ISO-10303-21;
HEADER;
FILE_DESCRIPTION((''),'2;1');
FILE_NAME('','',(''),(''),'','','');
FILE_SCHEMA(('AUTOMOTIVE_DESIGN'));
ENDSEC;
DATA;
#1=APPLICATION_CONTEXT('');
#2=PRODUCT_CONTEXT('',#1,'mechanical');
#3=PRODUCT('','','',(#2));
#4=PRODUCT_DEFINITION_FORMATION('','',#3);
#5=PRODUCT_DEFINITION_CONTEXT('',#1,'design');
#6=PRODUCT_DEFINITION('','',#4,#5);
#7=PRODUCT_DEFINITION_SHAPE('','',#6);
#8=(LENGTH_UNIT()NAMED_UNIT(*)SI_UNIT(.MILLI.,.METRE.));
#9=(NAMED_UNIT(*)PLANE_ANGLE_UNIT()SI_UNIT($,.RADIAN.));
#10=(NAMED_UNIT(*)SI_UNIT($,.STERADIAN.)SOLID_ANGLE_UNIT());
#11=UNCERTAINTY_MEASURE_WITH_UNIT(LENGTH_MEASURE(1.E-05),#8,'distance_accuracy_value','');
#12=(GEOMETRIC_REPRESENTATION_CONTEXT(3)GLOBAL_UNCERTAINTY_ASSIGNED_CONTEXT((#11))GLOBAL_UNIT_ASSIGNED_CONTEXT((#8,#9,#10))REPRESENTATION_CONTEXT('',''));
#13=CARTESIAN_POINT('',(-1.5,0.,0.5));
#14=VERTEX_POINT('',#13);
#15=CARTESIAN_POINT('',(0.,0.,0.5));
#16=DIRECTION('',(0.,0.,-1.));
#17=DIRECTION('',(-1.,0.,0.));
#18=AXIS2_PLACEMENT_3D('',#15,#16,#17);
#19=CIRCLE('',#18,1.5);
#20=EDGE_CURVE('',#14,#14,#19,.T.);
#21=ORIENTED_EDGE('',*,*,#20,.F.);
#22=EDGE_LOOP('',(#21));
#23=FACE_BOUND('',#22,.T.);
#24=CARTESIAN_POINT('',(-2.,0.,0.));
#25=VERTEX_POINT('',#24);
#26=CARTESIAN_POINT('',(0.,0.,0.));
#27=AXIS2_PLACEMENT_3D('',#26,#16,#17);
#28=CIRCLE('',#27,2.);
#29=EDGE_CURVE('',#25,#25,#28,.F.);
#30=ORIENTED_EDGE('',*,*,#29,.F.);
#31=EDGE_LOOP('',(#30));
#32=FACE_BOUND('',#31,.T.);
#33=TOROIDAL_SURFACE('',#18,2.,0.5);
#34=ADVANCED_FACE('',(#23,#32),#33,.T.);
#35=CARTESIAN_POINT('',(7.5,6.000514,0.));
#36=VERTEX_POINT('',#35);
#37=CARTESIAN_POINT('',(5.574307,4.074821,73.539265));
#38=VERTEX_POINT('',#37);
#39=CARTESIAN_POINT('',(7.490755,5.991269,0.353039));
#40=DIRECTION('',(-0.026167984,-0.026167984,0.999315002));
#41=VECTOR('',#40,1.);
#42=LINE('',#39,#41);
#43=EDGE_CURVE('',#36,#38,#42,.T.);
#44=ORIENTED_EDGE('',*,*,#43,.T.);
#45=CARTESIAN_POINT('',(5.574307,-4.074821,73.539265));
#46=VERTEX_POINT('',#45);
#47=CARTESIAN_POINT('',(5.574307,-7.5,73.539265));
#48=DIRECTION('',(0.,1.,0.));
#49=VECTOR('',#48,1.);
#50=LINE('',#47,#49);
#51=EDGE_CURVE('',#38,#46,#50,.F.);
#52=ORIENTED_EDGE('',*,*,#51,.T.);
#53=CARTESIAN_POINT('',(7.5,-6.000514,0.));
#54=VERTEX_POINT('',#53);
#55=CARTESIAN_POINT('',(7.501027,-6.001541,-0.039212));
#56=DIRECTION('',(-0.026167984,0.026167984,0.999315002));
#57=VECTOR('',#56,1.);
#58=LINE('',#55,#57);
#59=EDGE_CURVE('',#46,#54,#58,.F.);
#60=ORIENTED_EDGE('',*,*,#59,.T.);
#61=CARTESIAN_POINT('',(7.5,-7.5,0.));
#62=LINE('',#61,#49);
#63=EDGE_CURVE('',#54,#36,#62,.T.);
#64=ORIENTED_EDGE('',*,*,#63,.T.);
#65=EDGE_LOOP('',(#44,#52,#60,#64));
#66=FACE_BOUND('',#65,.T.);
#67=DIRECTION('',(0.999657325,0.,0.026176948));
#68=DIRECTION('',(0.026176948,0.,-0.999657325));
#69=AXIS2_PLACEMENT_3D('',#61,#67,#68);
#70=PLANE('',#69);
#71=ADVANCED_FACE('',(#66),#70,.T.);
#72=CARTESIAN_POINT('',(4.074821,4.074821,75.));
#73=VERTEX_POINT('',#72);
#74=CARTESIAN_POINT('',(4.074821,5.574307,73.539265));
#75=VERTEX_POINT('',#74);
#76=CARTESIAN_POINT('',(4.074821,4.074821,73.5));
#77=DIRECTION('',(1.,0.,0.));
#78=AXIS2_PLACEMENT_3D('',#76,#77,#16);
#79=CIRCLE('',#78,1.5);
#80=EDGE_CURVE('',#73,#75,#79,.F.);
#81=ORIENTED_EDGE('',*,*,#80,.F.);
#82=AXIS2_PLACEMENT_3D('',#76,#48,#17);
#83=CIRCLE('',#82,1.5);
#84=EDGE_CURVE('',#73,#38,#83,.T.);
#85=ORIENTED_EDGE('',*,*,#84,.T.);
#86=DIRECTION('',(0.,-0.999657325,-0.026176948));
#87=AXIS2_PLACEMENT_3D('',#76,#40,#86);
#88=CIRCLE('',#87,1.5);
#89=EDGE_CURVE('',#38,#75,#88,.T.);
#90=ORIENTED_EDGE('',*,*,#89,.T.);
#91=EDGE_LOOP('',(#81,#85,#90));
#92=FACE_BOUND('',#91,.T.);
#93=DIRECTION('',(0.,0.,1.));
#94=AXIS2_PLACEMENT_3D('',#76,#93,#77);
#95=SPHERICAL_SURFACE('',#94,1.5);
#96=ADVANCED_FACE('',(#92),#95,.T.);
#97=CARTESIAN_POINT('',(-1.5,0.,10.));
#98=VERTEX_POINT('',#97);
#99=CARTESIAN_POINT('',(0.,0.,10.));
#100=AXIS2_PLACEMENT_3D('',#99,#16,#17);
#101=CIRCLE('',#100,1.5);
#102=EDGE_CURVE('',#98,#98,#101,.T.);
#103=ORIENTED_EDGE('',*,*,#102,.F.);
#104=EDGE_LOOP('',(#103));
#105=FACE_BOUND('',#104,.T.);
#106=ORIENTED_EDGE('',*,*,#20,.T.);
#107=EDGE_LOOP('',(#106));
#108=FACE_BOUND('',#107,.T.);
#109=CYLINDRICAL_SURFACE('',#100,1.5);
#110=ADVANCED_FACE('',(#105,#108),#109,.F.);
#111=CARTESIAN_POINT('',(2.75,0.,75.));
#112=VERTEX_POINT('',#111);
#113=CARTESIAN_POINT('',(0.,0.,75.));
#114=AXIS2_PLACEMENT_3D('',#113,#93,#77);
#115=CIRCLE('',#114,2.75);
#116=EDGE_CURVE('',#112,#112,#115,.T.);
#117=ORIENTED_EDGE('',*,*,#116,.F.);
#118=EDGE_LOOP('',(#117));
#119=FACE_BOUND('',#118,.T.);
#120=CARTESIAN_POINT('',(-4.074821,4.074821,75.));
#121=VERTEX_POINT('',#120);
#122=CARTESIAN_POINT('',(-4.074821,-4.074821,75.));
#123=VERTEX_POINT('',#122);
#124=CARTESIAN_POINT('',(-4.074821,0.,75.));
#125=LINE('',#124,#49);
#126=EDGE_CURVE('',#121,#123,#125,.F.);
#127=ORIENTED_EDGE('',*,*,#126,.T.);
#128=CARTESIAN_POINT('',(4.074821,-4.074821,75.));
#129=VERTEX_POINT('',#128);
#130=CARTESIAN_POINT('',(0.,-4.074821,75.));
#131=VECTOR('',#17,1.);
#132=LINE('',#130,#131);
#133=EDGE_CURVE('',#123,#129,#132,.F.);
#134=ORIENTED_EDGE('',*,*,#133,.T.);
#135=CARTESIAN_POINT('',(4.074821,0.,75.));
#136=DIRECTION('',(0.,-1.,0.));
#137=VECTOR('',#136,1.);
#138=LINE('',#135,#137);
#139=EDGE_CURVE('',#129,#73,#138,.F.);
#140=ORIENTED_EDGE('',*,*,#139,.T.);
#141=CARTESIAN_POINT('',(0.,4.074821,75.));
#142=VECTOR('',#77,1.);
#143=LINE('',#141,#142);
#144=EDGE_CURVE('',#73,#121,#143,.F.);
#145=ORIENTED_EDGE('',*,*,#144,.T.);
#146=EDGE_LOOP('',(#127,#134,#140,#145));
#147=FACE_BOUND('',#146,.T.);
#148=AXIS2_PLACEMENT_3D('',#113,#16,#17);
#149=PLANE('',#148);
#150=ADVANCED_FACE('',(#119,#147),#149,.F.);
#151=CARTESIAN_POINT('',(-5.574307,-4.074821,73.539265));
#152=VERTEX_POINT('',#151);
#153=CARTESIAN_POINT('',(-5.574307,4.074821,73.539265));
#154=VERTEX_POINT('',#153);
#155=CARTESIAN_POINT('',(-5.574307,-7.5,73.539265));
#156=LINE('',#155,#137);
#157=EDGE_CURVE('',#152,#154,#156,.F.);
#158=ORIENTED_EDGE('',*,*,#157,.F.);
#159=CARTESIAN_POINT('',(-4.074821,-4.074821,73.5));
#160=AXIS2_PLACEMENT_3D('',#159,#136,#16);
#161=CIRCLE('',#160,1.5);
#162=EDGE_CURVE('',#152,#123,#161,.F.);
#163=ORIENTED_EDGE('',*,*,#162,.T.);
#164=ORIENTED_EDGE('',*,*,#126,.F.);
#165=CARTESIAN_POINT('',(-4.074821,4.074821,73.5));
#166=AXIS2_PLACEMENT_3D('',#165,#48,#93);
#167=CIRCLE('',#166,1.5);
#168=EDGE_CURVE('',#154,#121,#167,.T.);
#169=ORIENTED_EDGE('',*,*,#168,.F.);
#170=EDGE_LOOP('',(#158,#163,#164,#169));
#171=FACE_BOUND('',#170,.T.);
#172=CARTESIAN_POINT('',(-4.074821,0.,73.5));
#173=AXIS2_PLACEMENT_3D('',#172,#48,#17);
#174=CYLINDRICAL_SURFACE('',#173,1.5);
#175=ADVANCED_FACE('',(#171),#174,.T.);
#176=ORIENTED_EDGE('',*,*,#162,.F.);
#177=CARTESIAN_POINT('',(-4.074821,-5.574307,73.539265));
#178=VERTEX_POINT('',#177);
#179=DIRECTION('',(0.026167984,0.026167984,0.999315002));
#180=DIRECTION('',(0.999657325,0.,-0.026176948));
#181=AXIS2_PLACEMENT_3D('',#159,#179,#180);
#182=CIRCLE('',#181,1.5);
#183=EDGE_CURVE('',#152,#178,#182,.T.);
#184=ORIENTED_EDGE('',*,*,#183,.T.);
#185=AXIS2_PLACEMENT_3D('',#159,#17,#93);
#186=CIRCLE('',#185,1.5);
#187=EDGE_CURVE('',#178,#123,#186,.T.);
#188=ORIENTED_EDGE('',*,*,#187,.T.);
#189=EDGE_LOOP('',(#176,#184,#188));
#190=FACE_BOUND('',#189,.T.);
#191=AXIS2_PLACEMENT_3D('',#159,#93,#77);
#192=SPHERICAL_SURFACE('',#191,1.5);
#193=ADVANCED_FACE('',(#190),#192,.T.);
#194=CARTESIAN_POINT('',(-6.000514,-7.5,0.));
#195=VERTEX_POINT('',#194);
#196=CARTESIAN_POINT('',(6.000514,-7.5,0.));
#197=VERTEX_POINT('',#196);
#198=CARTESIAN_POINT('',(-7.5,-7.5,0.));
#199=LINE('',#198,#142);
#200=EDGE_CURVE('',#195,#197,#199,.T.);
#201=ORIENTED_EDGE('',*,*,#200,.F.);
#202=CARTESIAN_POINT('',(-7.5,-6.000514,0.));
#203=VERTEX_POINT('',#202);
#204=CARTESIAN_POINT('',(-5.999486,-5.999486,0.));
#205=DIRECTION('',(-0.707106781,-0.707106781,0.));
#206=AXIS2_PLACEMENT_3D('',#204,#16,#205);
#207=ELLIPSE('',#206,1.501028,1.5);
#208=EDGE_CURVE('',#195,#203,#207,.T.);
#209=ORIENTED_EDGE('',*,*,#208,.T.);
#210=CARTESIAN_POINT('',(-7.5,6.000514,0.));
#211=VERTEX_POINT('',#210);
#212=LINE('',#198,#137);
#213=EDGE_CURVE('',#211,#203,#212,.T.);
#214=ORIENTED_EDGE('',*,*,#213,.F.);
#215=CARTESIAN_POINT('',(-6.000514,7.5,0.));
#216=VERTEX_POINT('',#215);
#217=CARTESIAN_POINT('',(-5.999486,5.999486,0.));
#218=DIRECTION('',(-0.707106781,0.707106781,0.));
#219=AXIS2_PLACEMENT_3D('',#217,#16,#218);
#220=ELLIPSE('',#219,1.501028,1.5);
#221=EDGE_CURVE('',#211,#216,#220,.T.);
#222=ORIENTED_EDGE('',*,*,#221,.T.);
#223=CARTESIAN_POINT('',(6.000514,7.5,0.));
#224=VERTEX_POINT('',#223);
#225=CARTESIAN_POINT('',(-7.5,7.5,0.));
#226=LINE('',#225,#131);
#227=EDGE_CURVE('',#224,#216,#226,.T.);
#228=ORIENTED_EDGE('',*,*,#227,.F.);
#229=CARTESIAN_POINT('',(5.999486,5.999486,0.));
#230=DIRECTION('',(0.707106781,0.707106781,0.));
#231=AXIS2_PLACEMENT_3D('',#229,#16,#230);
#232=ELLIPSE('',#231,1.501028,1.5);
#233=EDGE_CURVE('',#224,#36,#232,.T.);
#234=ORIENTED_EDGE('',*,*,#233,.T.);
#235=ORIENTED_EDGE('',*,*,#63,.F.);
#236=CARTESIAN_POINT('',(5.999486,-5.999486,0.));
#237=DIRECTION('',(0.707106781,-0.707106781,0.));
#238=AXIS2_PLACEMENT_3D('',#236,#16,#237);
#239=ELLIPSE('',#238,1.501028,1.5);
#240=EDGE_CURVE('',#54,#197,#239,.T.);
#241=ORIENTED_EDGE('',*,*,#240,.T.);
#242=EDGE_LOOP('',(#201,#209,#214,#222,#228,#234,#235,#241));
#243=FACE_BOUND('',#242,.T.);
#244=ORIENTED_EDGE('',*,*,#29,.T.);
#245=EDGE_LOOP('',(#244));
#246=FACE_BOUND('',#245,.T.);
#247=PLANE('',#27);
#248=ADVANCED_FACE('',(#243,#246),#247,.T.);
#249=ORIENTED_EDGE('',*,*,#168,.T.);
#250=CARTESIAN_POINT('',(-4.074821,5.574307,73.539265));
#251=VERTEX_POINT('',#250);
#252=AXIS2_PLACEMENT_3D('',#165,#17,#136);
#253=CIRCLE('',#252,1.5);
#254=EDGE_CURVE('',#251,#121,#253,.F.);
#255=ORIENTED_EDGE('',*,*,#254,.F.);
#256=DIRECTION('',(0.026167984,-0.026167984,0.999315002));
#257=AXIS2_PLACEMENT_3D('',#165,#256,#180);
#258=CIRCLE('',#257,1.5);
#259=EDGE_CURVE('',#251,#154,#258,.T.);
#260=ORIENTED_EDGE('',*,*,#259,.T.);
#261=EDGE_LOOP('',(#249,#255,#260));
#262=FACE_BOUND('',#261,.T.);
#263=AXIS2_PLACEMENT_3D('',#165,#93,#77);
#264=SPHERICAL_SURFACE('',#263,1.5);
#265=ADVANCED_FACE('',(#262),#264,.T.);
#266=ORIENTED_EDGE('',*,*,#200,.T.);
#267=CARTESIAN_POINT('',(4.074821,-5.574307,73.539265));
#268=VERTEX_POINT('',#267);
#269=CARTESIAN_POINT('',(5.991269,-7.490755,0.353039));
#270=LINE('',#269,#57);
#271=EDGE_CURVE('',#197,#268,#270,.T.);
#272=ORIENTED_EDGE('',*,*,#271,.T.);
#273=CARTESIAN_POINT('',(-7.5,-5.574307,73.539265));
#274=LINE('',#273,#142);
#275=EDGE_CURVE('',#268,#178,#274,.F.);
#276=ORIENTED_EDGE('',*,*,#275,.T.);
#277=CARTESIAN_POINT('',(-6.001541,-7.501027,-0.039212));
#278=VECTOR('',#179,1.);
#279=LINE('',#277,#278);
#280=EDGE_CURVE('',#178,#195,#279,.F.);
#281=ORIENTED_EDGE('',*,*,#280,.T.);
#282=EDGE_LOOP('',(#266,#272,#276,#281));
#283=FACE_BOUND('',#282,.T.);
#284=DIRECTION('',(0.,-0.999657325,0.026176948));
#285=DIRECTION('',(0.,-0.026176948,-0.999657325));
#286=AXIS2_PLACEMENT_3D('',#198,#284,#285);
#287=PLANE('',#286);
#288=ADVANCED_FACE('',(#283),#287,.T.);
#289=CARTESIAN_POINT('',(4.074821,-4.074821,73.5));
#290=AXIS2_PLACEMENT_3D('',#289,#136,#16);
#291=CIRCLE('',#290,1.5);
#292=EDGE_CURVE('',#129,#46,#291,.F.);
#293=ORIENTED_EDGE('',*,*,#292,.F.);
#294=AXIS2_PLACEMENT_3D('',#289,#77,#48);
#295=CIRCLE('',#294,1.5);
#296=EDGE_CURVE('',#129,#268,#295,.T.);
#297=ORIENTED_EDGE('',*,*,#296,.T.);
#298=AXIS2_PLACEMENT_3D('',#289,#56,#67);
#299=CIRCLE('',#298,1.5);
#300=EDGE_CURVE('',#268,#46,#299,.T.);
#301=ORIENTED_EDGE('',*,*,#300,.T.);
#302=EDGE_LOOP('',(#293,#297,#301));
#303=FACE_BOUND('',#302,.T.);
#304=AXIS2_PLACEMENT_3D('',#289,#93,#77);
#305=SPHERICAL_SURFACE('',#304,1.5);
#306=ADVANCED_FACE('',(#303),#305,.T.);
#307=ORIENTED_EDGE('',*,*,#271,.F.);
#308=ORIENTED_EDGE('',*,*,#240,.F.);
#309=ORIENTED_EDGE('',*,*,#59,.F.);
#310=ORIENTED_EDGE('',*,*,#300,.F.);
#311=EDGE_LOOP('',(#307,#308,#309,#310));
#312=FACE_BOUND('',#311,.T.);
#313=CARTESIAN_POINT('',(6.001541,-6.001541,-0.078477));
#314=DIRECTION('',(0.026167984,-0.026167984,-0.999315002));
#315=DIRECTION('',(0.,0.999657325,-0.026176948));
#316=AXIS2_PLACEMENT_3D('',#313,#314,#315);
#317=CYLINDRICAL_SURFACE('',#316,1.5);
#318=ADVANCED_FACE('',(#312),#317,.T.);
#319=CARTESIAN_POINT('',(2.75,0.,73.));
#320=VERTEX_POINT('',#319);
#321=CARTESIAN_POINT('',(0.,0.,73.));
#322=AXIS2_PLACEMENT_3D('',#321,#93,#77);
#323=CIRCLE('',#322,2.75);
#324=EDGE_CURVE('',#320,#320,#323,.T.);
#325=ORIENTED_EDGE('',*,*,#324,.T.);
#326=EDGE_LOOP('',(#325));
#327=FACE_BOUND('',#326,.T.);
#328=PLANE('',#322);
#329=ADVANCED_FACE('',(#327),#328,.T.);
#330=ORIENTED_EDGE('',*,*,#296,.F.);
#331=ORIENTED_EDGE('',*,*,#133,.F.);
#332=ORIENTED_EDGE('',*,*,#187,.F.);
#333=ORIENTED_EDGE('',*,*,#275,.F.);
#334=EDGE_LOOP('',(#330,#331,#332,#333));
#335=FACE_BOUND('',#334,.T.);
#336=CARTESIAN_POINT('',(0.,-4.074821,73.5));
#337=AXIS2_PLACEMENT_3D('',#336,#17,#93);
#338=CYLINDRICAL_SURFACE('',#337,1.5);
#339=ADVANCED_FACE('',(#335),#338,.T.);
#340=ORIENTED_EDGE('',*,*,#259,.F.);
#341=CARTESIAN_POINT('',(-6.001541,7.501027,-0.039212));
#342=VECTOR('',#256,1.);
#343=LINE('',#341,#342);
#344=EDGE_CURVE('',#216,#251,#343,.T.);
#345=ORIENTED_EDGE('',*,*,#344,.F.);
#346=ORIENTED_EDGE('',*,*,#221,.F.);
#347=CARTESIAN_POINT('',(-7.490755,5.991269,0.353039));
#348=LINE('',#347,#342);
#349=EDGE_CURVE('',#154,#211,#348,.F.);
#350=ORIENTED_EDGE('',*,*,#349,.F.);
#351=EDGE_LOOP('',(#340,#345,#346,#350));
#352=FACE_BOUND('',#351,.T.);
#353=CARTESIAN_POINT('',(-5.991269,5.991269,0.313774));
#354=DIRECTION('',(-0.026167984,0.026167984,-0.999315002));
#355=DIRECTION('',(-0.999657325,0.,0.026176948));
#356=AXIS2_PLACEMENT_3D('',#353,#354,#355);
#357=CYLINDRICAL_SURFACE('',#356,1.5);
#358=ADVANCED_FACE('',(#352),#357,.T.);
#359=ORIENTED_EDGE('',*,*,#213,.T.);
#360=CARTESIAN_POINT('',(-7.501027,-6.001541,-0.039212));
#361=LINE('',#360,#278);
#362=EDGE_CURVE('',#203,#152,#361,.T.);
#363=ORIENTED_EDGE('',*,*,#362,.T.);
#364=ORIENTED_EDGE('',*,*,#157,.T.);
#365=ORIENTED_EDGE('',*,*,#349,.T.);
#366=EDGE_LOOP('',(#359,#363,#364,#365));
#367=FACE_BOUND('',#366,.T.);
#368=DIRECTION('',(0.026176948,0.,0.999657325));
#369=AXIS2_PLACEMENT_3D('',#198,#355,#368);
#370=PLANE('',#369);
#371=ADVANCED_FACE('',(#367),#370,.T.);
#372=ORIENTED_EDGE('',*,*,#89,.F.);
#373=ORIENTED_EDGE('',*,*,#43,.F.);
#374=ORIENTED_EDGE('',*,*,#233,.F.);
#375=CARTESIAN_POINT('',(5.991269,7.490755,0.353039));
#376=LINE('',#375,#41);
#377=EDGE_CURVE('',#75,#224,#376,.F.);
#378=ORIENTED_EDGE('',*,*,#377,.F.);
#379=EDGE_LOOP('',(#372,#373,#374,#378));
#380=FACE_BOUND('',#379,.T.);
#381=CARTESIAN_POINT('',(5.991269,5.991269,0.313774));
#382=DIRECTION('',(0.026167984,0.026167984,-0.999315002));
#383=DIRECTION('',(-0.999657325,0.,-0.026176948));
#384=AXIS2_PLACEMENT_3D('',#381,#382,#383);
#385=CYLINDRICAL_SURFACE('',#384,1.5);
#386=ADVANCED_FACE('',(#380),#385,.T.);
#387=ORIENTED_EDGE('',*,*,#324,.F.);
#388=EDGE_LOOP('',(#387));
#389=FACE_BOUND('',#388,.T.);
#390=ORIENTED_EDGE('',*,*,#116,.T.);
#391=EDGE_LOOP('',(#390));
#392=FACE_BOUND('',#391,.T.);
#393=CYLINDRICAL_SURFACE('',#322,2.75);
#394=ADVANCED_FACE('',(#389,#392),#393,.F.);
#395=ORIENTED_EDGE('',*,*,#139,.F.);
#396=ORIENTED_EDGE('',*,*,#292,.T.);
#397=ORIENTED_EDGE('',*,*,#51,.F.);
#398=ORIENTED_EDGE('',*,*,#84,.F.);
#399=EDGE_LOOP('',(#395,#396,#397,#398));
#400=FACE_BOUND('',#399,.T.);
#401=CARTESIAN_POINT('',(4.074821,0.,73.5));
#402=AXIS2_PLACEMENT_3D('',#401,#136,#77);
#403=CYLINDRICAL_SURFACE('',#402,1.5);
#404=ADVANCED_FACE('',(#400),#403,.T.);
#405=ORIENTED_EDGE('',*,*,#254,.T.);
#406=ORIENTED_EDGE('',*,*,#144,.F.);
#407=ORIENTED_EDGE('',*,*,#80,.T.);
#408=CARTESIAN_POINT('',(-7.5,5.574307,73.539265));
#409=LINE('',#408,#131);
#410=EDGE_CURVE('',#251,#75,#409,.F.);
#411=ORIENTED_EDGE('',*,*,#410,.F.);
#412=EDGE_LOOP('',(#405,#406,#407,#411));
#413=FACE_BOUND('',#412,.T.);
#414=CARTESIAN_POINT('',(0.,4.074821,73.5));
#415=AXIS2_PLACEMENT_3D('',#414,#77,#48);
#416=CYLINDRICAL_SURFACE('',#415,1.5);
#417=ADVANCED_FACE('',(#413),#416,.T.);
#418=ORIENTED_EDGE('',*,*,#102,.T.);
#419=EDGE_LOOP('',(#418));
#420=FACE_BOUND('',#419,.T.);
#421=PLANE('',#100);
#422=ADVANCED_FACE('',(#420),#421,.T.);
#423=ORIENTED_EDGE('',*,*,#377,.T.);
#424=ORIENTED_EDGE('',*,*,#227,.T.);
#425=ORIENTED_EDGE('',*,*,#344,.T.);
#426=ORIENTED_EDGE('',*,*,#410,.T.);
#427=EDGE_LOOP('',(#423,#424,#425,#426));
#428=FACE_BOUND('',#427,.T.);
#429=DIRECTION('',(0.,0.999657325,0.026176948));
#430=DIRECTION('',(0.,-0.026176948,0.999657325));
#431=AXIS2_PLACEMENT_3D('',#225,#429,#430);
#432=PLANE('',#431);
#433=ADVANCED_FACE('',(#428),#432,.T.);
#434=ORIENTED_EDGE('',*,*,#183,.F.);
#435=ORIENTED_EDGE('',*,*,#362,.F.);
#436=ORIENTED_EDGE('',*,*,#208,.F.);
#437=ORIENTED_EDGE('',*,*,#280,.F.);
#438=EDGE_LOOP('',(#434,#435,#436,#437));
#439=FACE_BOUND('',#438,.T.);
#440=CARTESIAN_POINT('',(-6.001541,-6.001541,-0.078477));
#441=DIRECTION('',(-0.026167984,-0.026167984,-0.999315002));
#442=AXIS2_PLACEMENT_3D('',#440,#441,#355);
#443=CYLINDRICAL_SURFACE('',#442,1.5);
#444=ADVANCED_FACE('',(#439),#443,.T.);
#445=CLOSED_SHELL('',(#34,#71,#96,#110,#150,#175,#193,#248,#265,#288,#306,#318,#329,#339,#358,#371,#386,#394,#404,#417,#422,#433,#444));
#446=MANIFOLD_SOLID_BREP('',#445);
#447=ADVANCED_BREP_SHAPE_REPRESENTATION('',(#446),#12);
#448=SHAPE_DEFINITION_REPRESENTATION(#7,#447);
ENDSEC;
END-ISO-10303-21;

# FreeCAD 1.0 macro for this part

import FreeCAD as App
import Part
import Sketcher
Q = App.Units.Quantity


def edges_at(feature, points):
    """Names of the edges that pass closest to the given points."""
    edges = feature.Shape.Edges
    near = lambda p: min(range(len(edges)), key=lambda i: edges[i].distToShape(Part.Vertex(*p))[0])
    return sorted({f"Edge{near(p) + 1}" for p in points})


def add_polygon(sketch, points):
    """Adds a closed chain of lines whose ends are joined by coincident constraints."""
    first, n = sketch.GeometryCount, len(points)
    for a, b in zip(points, points[1:] + points[:1]):
        sketch.addGeometry(Part.LineSegment(App.Vector(*a, 0), App.Vector(*b, 0)), False)
    for i in range(n):
        sketch.addConstraint(Sketcher.Constraint("Coincident", first + i, 2, first + (i + 1) % n, 1))

doc = App.newDocument("Part")
params = doc.addObject("Spreadsheet::Sheet", "Params")
for row, (alias, value) in enumerate([
    ("sketch1_width", "15 mm"),
    ("pad1_length", "75 mm"),
    ("pad1_taper", "-1.5 deg"),
    ("sketch2_diameter", "3 mm"),
    ("pocket1_length", "10 mm"),
    ("sketch3_diameter", "5.5 mm"),
    ("pocket2_length", "2 mm"),
    ("fillet_radius", "1.5 mm"),
    ("fillet2_radius", "0.5 mm"),
], start=1):
    params.set(f"A{row}", alias)
    params.set(f"B{row}", "=" + value)
    params.setAlias(f"B{row}", alias)

body = doc.addObject("PartDesign::Body", "Body")

sketch1 = doc.addObject("Sketcher::SketchObject", "Sketch")
body.addObject(sketch1)
sketch1.AttachmentSupport = (doc.XY_Plane, [""])
sketch1.MapMode = "FlatFace"
add_polygon(sketch1, [(-8, 8), (-8, -8), (8, -8), (8, 8)])
sketch1.addConstraint([
    Sketcher.Constraint("Vertical", 0),
    Sketcher.Constraint("Horizontal", 1),
    Sketcher.Constraint("Vertical", 2),
    Sketcher.Constraint("Horizontal", 3),
    Sketcher.Constraint("Symmetric", 0, 2, 2, 2, -1, 1),
    Sketcher.Constraint("Equal", 3, 0),
    Sketcher.Constraint("DistanceX", 1, 1, 1, 2, Q("15 mm")),
])
sketch1.setExpression("Constraints[10]", "Params.sketch1_width")
pad1 = doc.addObject("PartDesign::Pad", "Pad")
body.addObject(pad1)
pad1.Profile = sketch1
pad1.setExpression("Length", "Params.pad1_length")
pad1.setExpression("TaperAngle", "Params.pad1_taper")

sketch2 = doc.addObject("Sketcher::SketchObject", "Sketch001")
body.addObject(sketch2)
sketch2.AttachmentSupport = (doc.XY_Plane, [""])
sketch2.MapMode = "FlatFace"
sketch2.addGeometry(Part.Circle(App.Vector(0, 0, 0), App.Vector(0, 0, 1), 1.5), False)
sketch2.addConstraint([
    Sketcher.Constraint("Coincident", 0, 3, -1, 1),
    Sketcher.Constraint("Diameter", 0, Q("3 mm")),
])
sketch2.setExpression("Constraints[1]", "Params.sketch2_diameter")
pocket1 = doc.addObject("PartDesign::Pocket", "Pocket")
body.addObject(pocket1)
pocket1.Profile = sketch2
pocket1.setExpression("Length", "Params.pocket1_length")
pocket1.Reversed = True

sketch3 = doc.addObject("Sketcher::SketchObject", "Sketch002")
body.addObject(sketch3)
sketch3.AttachmentSupport = (doc.XY_Plane, [""])
sketch3.MapMode = "FlatFace"
sketch3.AttachmentOffset = App.Placement(App.Vector(0, 0, 75), App.Rotation())
sketch3.addGeometry(Part.Circle(App.Vector(0, 0, 0), App.Vector(0, 0, 1), 2.8), False)
sketch3.addConstraint([
    Sketcher.Constraint("Coincident", 0, 3, -1, 1),
    Sketcher.Constraint("Diameter", 0, Q("5.5 mm")),
])
sketch3.setExpression("Constraints[1]", "Params.sketch3_diameter")
pocket2 = doc.addObject("PartDesign::Pocket", "Pocket001")
body.addObject(pocket2)
pocket2.Profile = sketch3
pocket2.setExpression("Length", "Params.pocket2_length")
doc.recompute()

fillet = doc.addObject("PartDesign::Fillet", "Fillet")
body.addObject(fillet)
fillet.Base = (pocket2, edges_at(pocket2, [
    (-5.536, 0, 75),
    (0, -5.536, 75),
    (5.536, 0, 75),
    (6.518, -6.518, 37.5),
    (-6.518, -6.518, 37.5),
    (-6.518, 6.518, 37.5),
    (6.518, 6.518, 37.5),
    (0, 5.536, 75),
]))
fillet.setExpression("Radius", "Params.fillet_radius")
doc.recompute()

fillet2 = doc.addObject("PartDesign::Fillet", "Fillet001")
body.addObject(fillet2)
fillet2.Base = (fillet, edges_at(fillet, [(1.5, 0, 0)]))
fillet2.setExpression("Radius", "Params.fillet2_radius")

doc.recompute()
